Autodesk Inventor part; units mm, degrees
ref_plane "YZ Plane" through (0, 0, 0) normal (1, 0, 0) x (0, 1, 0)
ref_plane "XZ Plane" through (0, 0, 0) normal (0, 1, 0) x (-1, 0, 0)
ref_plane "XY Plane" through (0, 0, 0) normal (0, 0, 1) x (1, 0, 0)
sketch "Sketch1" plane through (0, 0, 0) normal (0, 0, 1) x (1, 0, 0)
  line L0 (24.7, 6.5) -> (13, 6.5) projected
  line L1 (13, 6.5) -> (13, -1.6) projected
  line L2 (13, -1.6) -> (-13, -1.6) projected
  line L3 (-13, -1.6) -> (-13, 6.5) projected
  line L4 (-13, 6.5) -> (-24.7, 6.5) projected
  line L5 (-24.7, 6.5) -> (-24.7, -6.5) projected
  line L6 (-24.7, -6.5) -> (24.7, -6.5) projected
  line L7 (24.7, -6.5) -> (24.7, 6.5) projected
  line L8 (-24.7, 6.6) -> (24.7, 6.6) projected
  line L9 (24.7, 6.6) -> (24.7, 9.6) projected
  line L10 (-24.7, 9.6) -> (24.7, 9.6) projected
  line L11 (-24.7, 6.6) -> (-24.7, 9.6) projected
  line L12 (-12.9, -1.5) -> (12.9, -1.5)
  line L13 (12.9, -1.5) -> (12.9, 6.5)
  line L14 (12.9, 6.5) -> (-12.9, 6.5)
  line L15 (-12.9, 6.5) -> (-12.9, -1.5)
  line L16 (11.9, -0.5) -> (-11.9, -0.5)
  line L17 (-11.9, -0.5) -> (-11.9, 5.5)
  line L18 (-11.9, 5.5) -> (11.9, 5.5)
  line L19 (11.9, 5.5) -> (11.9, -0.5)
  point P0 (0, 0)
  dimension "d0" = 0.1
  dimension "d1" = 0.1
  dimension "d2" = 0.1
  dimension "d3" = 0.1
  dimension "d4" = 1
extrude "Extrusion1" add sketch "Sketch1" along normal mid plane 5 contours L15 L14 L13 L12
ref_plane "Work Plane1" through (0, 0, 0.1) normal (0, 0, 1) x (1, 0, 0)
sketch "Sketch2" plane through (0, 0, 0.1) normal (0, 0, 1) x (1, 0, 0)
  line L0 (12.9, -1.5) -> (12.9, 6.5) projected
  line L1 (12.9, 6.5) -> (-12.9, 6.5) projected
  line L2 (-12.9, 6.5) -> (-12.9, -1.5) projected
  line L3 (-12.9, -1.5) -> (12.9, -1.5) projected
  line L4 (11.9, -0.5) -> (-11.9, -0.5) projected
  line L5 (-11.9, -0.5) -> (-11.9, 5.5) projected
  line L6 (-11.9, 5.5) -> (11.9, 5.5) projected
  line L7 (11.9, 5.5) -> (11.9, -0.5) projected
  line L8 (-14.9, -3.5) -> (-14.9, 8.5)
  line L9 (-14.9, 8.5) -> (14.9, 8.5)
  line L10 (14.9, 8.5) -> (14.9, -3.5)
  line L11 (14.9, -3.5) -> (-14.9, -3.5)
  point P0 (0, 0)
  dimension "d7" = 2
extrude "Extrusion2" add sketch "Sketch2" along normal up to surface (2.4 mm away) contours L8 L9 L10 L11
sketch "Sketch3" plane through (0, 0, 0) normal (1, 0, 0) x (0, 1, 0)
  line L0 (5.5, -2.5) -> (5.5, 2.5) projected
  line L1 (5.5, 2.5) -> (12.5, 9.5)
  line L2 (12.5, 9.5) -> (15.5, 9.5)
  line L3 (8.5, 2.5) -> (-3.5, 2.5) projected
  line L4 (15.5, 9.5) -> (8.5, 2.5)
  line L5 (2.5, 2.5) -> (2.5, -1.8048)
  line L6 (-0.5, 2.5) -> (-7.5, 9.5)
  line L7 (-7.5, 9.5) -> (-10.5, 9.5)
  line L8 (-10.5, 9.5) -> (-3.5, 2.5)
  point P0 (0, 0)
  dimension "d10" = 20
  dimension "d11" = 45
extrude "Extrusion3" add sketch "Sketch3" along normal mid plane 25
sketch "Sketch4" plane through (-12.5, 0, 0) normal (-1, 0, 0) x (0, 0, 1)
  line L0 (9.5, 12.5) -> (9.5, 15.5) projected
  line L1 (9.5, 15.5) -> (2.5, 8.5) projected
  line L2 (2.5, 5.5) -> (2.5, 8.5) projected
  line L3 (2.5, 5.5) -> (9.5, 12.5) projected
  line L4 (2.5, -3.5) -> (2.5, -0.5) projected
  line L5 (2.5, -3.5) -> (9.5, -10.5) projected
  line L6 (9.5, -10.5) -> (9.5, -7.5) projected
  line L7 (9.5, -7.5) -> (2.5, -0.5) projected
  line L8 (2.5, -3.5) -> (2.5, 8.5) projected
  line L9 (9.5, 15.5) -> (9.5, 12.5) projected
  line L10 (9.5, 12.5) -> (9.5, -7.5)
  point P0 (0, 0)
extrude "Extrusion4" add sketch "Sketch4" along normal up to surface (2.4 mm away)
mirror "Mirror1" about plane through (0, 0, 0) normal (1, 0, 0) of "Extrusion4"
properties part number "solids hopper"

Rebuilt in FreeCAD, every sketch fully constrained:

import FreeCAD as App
import Part
import Sketcher

V = App.Vector

doc = App.newDocument("Part")
body = doc.addObject("PartDesign::Body", "Body")

# Sketch on XY plane
sketch1 = body.newObject("Sketcher::SketchObject", "Sketch")
sketch1.AttachmentSupport = (doc.getObject("XY_Plane"), [""])
sketch1.MapMode = "FlatFace"
sketch1.addGeometry(Part.LineSegment(V(-13, 6, 0), V(-13, -2, 0)), False)
sketch1.addGeometry(Part.LineSegment(V(-13, -2, 0), V(13, -2, 0)), False)
sketch1.addGeometry(Part.LineSegment(V(13, -2, 0), V(13, 6, 0)), False)
sketch1.addGeometry(Part.LineSegment(V(13, 6, 0), V(-13, 6, 0)), False)
sketch1.addGeometry(Part.LineSegment(V(12, 6, 0), V(12, 0, 0)), False)
sketch1.addGeometry(Part.LineSegment(V(12, 0, 0), V(-12, 0, 0)), False)
sketch1.addGeometry(Part.LineSegment(V(-12, 0, 0), V(-12, 6, 0)), False)
sketch1.addGeometry(Part.LineSegment(V(-12, 6, 0), V(12, 6, 0)), False)
sketch1.addConstraint(Sketcher.Constraint("Coincident", 0, 2, 1, 1))
sketch1.addConstraint(Sketcher.Constraint("Coincident", 1, 2, 2, 1))
sketch1.addConstraint(Sketcher.Constraint("Coincident", 2, 2, 3, 1))
sketch1.addConstraint(Sketcher.Constraint("Coincident", 3, 2, 0, 1))
sketch1.addConstraint(Sketcher.Constraint("Coincident", 4, 2, 5, 1))
sketch1.addConstraint(Sketcher.Constraint("Coincident", 5, 2, 6, 1))
sketch1.addConstraint(Sketcher.Constraint("Coincident", 6, 2, 7, 1))
sketch1.addConstraint(Sketcher.Constraint("Coincident", 7, 2, 4, 1))
sketch1.addConstraint(Sketcher.Constraint("Vertical", 0))
sketch1.addConstraint(Sketcher.Constraint("Horizontal", 1))
sketch1.addConstraint(Sketcher.Constraint("Vertical", 2))
sketch1.addConstraint(Sketcher.Constraint("Horizontal", 3))
sketch1.addConstraint(Sketcher.Constraint("Vertical", 4))
sketch1.addConstraint(Sketcher.Constraint("Horizontal", 5))
sketch1.addConstraint(Sketcher.Constraint("Vertical", 6))
sketch1.addConstraint(Sketcher.Constraint("Horizontal", 7))
sketch1.addConstraint(Sketcher.Constraint("DistanceX", 4, 2, 1, 2, 1.0))
sketch1.addConstraint(Sketcher.Constraint("DistanceY", 1, 2, 4, 2, 1.0))
sketch1.addConstraint(Sketcher.Constraint("DistanceX", 0, 2, 5, 2, 1.0))
sketch1.addConstraint(Sketcher.Constraint("DistanceY", 6, 2, 3, 2, 1.0))
sketch1.addConstraint(Sketcher.Constraint("DistanceY", 0, 2, 0, 1, 8.0))
sketch1.addConstraint(Sketcher.Constraint("DistanceX", 1, 1, 1, 2, 25.8))
sketch1.addConstraint(Sketcher.Constraint("DistanceX", 0, 2, -1, 1, 12.9))
sketch1.addConstraint(Sketcher.Constraint("DistanceY", 0, 2, -1, 1, 1.5))
pad1 = body.newObject("PartDesign::Pad", "Pad")
pad1.Profile = sketch1
pad1.Length = 5
pad1.Midplane = True

# Sketch on XY plane
sketch2 = body.newObject("Sketcher::SketchObject", "Sketch001")
sketch2.AttachmentSupport = (doc.getObject("XY_Plane"), [""])
sketch2.MapMode = "FlatFace"
sketch2.AttachmentOffset = App.Placement(V(0, 0, 0.1), App.Rotation())
sketch2.addGeometry(Part.LineSegment(V(-15, 8, 0), V(-15, -4, 0)), False)
sketch2.addGeometry(Part.LineSegment(V(-15, -4, 0), V(15, -4, 0)), False)
sketch2.addGeometry(Part.LineSegment(V(15, -4, 0), V(15, 8, 0)), False)
sketch2.addGeometry(Part.LineSegment(V(15, 8, 0), V(-15, 8, 0)), False)
sketch2.addGeometry(Part.LineSegment(V(13, 6, 0), V(13, -2, 0)), False)
sketch2.addGeometry(Part.LineSegment(V(13, -2, 0), V(-13, -2, 0)), False)
sketch2.addGeometry(Part.LineSegment(V(-13, -2, 0), V(-13, 6, 0)), False)
sketch2.addGeometry(Part.LineSegment(V(-13, 6, 0), V(13, 6, 0)), False)
sketch2.addConstraint(Sketcher.Constraint("Coincident", 0, 2, 1, 1))
sketch2.addConstraint(Sketcher.Constraint("Coincident", 1, 2, 2, 1))
sketch2.addConstraint(Sketcher.Constraint("Coincident", 2, 2, 3, 1))
sketch2.addConstraint(Sketcher.Constraint("Coincident", 3, 2, 0, 1))
sketch2.addConstraint(Sketcher.Constraint("Coincident", 4, 2, 5, 1))
sketch2.addConstraint(Sketcher.Constraint("Coincident", 5, 2, 6, 1))
sketch2.addConstraint(Sketcher.Constraint("Coincident", 6, 2, 7, 1))
sketch2.addConstraint(Sketcher.Constraint("Coincident", 7, 2, 4, 1))
sketch2.addConstraint(Sketcher.Constraint("Vertical", 0))
sketch2.addConstraint(Sketcher.Constraint("Horizontal", 1))
sketch2.addConstraint(Sketcher.Constraint("Vertical", 2))
sketch2.addConstraint(Sketcher.Constraint("Horizontal", 3))
sketch2.addConstraint(Sketcher.Constraint("Vertical", 4))
sketch2.addConstraint(Sketcher.Constraint("Horizontal", 5))
sketch2.addConstraint(Sketcher.Constraint("Vertical", 6))
sketch2.addConstraint(Sketcher.Constraint("Horizontal", 7))
sketch2.addConstraint(Sketcher.Constraint("DistanceX", 4, 2, 1, 2, 2.0))
sketch2.addConstraint(Sketcher.Constraint("DistanceY", 1, 2, 4, 2, 2.0))
sketch2.addConstraint(Sketcher.Constraint("DistanceX", 0, 2, 5, 2, 2.0))
sketch2.addConstraint(Sketcher.Constraint("DistanceY", 6, 2, 3, 2, 2.0))
sketch2.addConstraint(Sketcher.Constraint("DistanceY", 0, 2, 0, 1, 12.0))
sketch2.addConstraint(Sketcher.Constraint("DistanceX", 1, 1, 1, 2, 29.8))
sketch2.addConstraint(Sketcher.Constraint("DistanceX", 0, 2, -1, 1, 14.9))
sketch2.addConstraint(Sketcher.Constraint("DistanceY", 0, 2, -1, 1, 3.5))
pad2 = body.newObject("PartDesign::Pad", "Pad001")
pad2.Profile = sketch2
pad2.Length = 2.4

# Sketch on YZ plane
sketch3 = body.newObject("Sketcher::SketchObject", "Sketch002")
sketch3.AttachmentSupport = (doc.getObject("YZ_Plane"), [""])
sketch3.MapMode = "FlatFace"
sketch3.addGeometry(Part.LineSegment(V(12.5, 9.5, 0), V(5.5, 2.5, 0)), False)
sketch3.addGeometry(Part.LineSegment(V(5.5, 2.5, 0), V(8.5, 2.5, 0)), False)
sketch3.addGeometry(Part.LineSegment(V(8.5, 2.5, 0), V(15.5, 9.5, 0)), False)
sketch3.addGeometry(Part.LineSegment(V(15.5, 9.5, 0), V(12.5, 9.5, 0)), False)
sketch3.addGeometry(Part.LineSegment(V(-3.5, 2.5, 0), V(-0.5, 2.5, 0)), False)
sketch3.addGeometry(Part.LineSegment(V(-0.5, 2.5, 0), V(-7.5, 9.5, 0)), False)
sketch3.addGeometry(Part.LineSegment(V(-7.5, 9.5, 0), V(-10.5, 9.5, 0)), False)
sketch3.addGeometry(Part.LineSegment(V(-10.5, 9.5, 0), V(-3.5, 2.5, 0)), False)
sketch3.addConstraint(Sketcher.Constraint("Coincident", 0, 2, 1, 1))
sketch3.addConstraint(Sketcher.Constraint("Coincident", 1, 2, 2, 1))
sketch3.addConstraint(Sketcher.Constraint("Coincident", 2, 2, 3, 1))
sketch3.addConstraint(Sketcher.Constraint("Coincident", 3, 2, 0, 1))
sketch3.addConstraint(Sketcher.Constraint("Coincident", 4, 2, 5, 1))
sketch3.addConstraint(Sketcher.Constraint("Coincident", 5, 2, 6, 1))
sketch3.addConstraint(Sketcher.Constraint("Coincident", 6, 2, 7, 1))
sketch3.addConstraint(Sketcher.Constraint("Coincident", 7, 2, 4, 1))
sketch3.addConstraint(Sketcher.Constraint("Horizontal", 1))
sketch3.addConstraint(Sketcher.Constraint("Horizontal", 3))
sketch3.addConstraint(Sketcher.Constraint("Horizontal", 4))
sketch3.addConstraint(Sketcher.Constraint("Horizontal", 6))
sketch3.addConstraint(Sketcher.Constraint("Parallel", 0, 2))
sketch3.addConstraint(Sketcher.Constraint("Perpendicular", 2, 5))
sketch3.addConstraint(Sketcher.Constraint("Parallel", 5, 7))
sketch3.addConstraint(Sketcher.Constraint("Horizontal", 1, 2, 4, 2))
sketch3.addConstraint(Sketcher.Constraint("Horizontal", 3, 2, 5, 2))
sketch3.addConstraint(Sketcher.Constraint("Equal", 3, 4))
sketch3.addConstraint(Sketcher.Constraint("Equal", 2, 5))
sketch3.addConstraint(Sketcher.Constraint("DistanceX", 5, 2, 3, 2, 20.0))
sketch3.addConstraint(Sketcher.Constraint("DistanceX", 1, 1, 1, 2, 3.0))
sketch3.addConstraint(Sketcher.Constraint("DistanceX", 1, 2, 2, 2, 7.0))
sketch3.addConstraint(Sketcher.Constraint("DistanceX", -1, 1, 0, 2, 5.5))
sketch3.addConstraint(Sketcher.Constraint("DistanceY", -1, 1, 0, 2, 2.5))
pad3 = body.newObject("PartDesign::Pad", "Pad002")
pad3.Profile = sketch3
pad3.Length = 25
pad3.Midplane = True

# Sketch on YZ plane
sketch4 = body.newObject("Sketcher::SketchObject", "Sketch003")
sketch4.AttachmentSupport = (doc.getObject("YZ_Plane"), [""])
sketch4.MapMode = "FlatFace"
sketch4.AttachmentOffset = App.Placement(V(0, 0, -12.5), App.Rotation())
sketch4.addGeometry(Part.LineSegment(V(8, 2, 0), V(-4, 2, 0)), False)
sketch4.addGeometry(Part.LineSegment(V(-4, 2, 0), V(-10, 10, 0)), False)
sketch4.addGeometry(Part.LineSegment(V(-10, 10, 0), V(16, 10, 0)), False)
sketch4.addGeometry(Part.LineSegment(V(16, 10, 0), V(8, 2, 0)), False)
sketch4.addConstraint(Sketcher.Constraint("Coincident", 0, 2, 1, 1))
sketch4.addConstraint(Sketcher.Constraint("Coincident", 1, 2, 2, 1))
sketch4.addConstraint(Sketcher.Constraint("Coincident", 2, 2, 3, 1))
sketch4.addConstraint(Sketcher.Constraint("Coincident", 3, 2, 0, 1))
sketch4.addConstraint(Sketcher.Constraint("Horizontal", 0))
sketch4.addConstraint(Sketcher.Constraint("Horizontal", 2))
sketch4.addConstraint(Sketcher.Constraint("Perpendicular", 1, 3))
sketch4.addConstraint(Sketcher.Constraint("Equal", 1, 3))
sketch4.addConstraint(Sketcher.Constraint("DistanceX", 0, 2, 0, 1, 12.0))
sketch4.addConstraint(Sketcher.Constraint("DistanceX", 2, 1, 2, 2, 26.0))
sketch4.addConstraint(Sketcher.Constraint("DistanceX", 0, 2, -1, 1, 3.5))
sketch4.addConstraint(Sketcher.Constraint("DistanceY", -1, 1, 0, 2, 2.5))
pad4 = body.newObject("PartDesign::Pad", "Pad003")
pad4.Profile = sketch4
pad4.Length = 2.4
pad4.Reversed = True
doc.recompute()

mirrored = body.newObject("PartDesign::Mirrored", "Mirrored")
mirrored.Originals = [pad4]
mirrored.MirrorPlane = (doc.getObject("YZ_Plane"), [""])
body.Tip = mirrored

doc.recompute()
